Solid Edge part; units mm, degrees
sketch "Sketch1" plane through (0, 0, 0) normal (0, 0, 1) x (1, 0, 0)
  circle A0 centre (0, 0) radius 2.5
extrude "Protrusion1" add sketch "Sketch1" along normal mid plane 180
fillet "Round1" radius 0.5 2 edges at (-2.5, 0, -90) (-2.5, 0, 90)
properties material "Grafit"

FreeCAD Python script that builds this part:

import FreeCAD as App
import Part
import Sketcher

V = App.Vector


def edges_at(feature, points):
    """Names of the edges that pass closest to the given points."""
    edges = feature.Shape.Edges
    near = lambda p: min(range(len(edges)), key=lambda i: edges[i].distToShape(Part.Vertex(*p))[0])
    return sorted({f"Edge{near(p) + 1}" for p in points})

doc = App.newDocument("Part")
body = doc.addObject("PartDesign::Body", "Body")

# Sketch on XY plane
sketch1 = body.newObject("Sketcher::SketchObject", "Sketch")
sketch1.AttachmentSupport = (doc.getObject("XY_Plane"), [""])
sketch1.MapMode = "FlatFace"
sketch1.addGeometry(Part.Circle(V(0, 0, 0), V(0, 0, 1), 2.5), False)
sketch1.addConstraint(Sketcher.Constraint("Coincident", 0, 3, -1, 1))
sketch1.addConstraint(Sketcher.Constraint("Diameter", 0, 5.0))
pad1 = body.newObject("PartDesign::Pad", "Pad")
pad1.Profile = sketch1
pad1.Length = 180
pad1.Midplane = True
doc.recompute()

fillet = body.newObject("PartDesign::Fillet", "Fillet")
fillet.Base = (pad1, edges_at(pad1, [(-2.5, 0, -90), (-2.5, 0, 90)]))
fillet.Radius = 0.5

doc.recompute()
